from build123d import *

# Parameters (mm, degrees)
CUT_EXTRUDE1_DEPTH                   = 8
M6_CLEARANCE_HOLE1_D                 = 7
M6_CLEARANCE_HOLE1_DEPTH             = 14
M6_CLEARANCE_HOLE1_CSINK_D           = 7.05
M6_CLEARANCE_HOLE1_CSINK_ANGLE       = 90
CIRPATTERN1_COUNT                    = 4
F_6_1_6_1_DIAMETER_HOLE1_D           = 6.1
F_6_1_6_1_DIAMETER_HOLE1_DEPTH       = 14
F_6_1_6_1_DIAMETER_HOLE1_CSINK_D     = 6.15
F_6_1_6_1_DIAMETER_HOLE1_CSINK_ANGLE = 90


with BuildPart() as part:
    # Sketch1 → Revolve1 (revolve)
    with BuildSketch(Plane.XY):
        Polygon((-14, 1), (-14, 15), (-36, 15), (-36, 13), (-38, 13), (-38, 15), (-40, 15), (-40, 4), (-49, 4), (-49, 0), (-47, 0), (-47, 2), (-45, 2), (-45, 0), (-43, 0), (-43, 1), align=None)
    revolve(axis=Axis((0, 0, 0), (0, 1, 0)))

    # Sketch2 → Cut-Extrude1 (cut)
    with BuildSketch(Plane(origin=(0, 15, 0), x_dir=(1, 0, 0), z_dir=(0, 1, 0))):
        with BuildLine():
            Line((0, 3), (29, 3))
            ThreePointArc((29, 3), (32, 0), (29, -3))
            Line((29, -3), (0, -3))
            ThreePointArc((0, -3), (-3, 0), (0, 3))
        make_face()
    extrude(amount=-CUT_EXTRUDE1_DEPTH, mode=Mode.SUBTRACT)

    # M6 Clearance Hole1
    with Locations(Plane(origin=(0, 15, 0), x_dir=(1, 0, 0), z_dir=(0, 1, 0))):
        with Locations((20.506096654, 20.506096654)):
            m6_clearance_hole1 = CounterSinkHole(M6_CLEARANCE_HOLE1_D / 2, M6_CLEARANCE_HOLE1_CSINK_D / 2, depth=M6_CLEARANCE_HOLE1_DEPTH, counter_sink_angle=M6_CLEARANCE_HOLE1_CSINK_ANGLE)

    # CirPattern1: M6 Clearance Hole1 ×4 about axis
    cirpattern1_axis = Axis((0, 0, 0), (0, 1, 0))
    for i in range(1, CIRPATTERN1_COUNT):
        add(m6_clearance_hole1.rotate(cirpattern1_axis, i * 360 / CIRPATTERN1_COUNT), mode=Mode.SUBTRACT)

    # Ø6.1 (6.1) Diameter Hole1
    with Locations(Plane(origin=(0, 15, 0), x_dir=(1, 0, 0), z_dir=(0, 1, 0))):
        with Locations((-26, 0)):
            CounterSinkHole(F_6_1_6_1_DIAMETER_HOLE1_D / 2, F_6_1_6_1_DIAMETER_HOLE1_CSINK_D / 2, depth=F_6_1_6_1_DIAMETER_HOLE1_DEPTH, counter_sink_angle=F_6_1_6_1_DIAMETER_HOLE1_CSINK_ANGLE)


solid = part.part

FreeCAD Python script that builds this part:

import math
import FreeCAD as App
import Part
import Sketcher
from FreeCAD import Vector
Q = App.Units.Quantity


def add_polygon(sketch, points):
    """Adds a closed chain of lines whose ends are joined by coincident constraints."""
    first, n = sketch.GeometryCount, len(points)
    for a, b in zip(points, points[1:] + points[:1]):
        sketch.addGeometry(Part.LineSegment(App.Vector(*a, 0), App.Vector(*b, 0)), False)
    for i in range(n):
        sketch.addConstraint(Sketcher.Constraint("Coincident", first + i, 2, first + (i + 1) % n, 1))

doc = App.newDocument("Part")
body = doc.addObject("PartDesign::Body", "Body")

# Sketch on XY plane
sketch1 = body.newObject("Sketcher::SketchObject", "Sketch")
sketch1.AttachmentSupport = (doc.getObject("XY_Plane"), [""])
sketch1.MapMode = "FlatFace"
add_polygon(sketch1, [(-14, 1), (-14, 15), (-36, 15), (-36, 13), (-38, 13), (-38, 15), (-40, 15), (-40, 4), (-49, 4), (-49, 0), (-47, 0), (-47, 2), (-45, 2), (-45, 0), (-43, 0), (-43, 1)])  # lines 0-15
sketch1.addConstraint([
    Sketcher.Constraint("Vertical", 0),
    Sketcher.Constraint("Horizontal", 1),
    Sketcher.Constraint("Vertical", 2),
    Sketcher.Constraint("Horizontal", 3),
    Sketcher.Constraint("Vertical", 4),
    Sketcher.Constraint("Horizontal", 5),
    Sketcher.Constraint("Vertical", 6),
    Sketcher.Constraint("Horizontal", 7),
    Sketcher.Constraint("Vertical", 8),
    Sketcher.Constraint("Horizontal", 9),
    Sketcher.Constraint("Vertical", 10),
    Sketcher.Constraint("Horizontal", 11),
    Sketcher.Constraint("Vertical", 12),
    Sketcher.Constraint("Horizontal", 13),
    Sketcher.Constraint("Vertical", 14),
    Sketcher.Constraint("Horizontal", 15),
    Sketcher.Constraint("PointOnObject", 8, 2, -1),
    Sketcher.Constraint("PointOnObject", 12, 2, -1),
    Sketcher.Constraint("Horizontal", 1, 2, 4, 2),
    Sketcher.Constraint("Equal", 3, 5),
    Sketcher.Constraint("Equal", 5, 9),
    Sketcher.Constraint("Equal", 9, 11),
    Sketcher.Constraint("Equal", 11, 13),
    Sketcher.Constraint("Equal", 13, 2),
    Sketcher.Constraint("Equal", 4, 10),
    Sketcher.Constraint("DistanceX", 1, 2, 1, 1, Q("22 mm")),
    Sketcher.Constraint("DistanceX", 3, 2, 3, 1, Q("2 mm")),
    Sketcher.Constraint("DistanceX", 7, 2, 7, 1, Q("9 mm")),
    Sketcher.Constraint("DistanceY", 0, 1, 0, 2, Q("14 mm")),
    Sketcher.Constraint("DistanceY", 6, 2, 6, 1, Q("11 mm")),
    Sketcher.Constraint("DistanceY", 8, 2, 8, 1, Q("4 mm")),
    Sketcher.Constraint("DistanceX", 0, 2, -1, 1, Q("14 mm")),
])
revolution = body.newObject("PartDesign::Revolution", "Revolution")
revolution.Profile = sketch1
revolution.ReferenceAxis = (sketch1, ["V_Axis"])
revolution.Angle = 360

# Sketch on XZ plane
sketch2 = body.newObject("Sketcher::SketchObject", "Sketch001")
sketch2.AttachmentSupport = (doc.getObject("XZ_Plane"), [""])
sketch2.MapMode = "FlatFace"
sketch2.AttachmentOffset = App.Placement(Vector(0, 0, -15), App.Rotation())
sketch2.addGeometry([
    Part.LineSegment(Vector(29, -3, 0), Vector(0, -3, 0)),
    Part.ArcOfCircle(Part.Circle(Vector(0, 0, 0), Vector(0, 0, 1), 3), math.radians(90), math.radians(270)),
    Part.LineSegment(Vector(0, 3, 0), Vector(29, 3, 0)),
    Part.ArcOfCircle(Part.Circle(Vector(29, 0, 0), Vector(0, 0, 1), 3), math.radians(-90), math.radians(90)),
], False)
sketch2.addConstraint([
    Sketcher.Constraint("Tangent", 0, 2, 1, 2),
    Sketcher.Constraint("Tangent", 1, 1, 2, 1),
    Sketcher.Constraint("Tangent", 2, 2, 3, 2),
    Sketcher.Constraint("Tangent", 3, 1, 0, 1),
    Sketcher.Constraint("Horizontal", 0),
    Sketcher.Constraint("Horizontal", 2),
    Sketcher.Constraint("Coincident", 1, 3, -1, 1),
    Sketcher.Constraint("Radius", 1, Q("3 mm")),
    Sketcher.Constraint("DistanceX", 0, 2, 0, 1, Q("29 mm")),
])
pocket1 = body.newObject("PartDesign::Pocket", "Pocket")
pocket1.Profile = sketch2
pocket1.Length = 8
pocket1.Reversed = True

# Sketch on XZ plane
sketch3 = body.newObject("Sketcher::SketchObject", "Sketch002")
sketch3.AttachmentSupport = (doc.getObject("XZ_Plane"), [""])
sketch3.MapMode = "FlatFace"
sketch3.AttachmentOffset = App.Placement(Vector(0, 0, -15), App.Rotation())
sketch3.addGeometry(Part.Circle(Vector(20.5, -20.5, 0), Vector(0, 0, 1), 3.5), False)
sketch3.addConstraint([
    Sketcher.Constraint("Diameter", 0, Q("7 mm")),
    Sketcher.Constraint("DistanceX", -1, 1, 0, 3, Q("20.506097 mm")),
    Sketcher.Constraint("DistanceY", 0, 3, -1, 1, Q("20.506097 mm")),
])
doc.recompute()
hole = body.newObject("PartDesign::Hole", "Hole")
hole.Profile = sketch3
hole.ThreadType = "None"
hole.Diameter = 7
hole.DepthType = "Dimension"
hole.Depth = 14
hole.DrillPoint = "Flat"
hole.HoleCutType = "Countersink"
hole.HoleCutDiameter = 7.05
hole.HoleCutCountersinkAngle = 90
hole.Reversed = True
doc.recompute()

polarpattern = body.newObject("PartDesign::PolarPattern", "PolarPattern")
polarpattern.Originals = [hole]
polarpattern.Axis = (doc.getObject("Y_Axis"), [""])
polarpattern.Angle = 360
polarpattern.Occurrences = 4
body.Tip = polarpattern

# Sketch on XZ plane
sketch4 = body.newObject("Sketcher::SketchObject", "Sketch003")
sketch4.AttachmentSupport = (doc.getObject("XZ_Plane"), [""])
sketch4.MapMode = "FlatFace"
sketch4.AttachmentOffset = App.Placement(Vector(0, 0, -15), App.Rotation())
sketch4.addGeometry(Part.Circle(Vector(-26, 0, 0), Vector(0, 0, 1), 3), False)
sketch4.addConstraint([
    Sketcher.Constraint("PointOnObject", 0, 3, -1),
    Sketcher.Constraint("Diameter", 0, Q("6.1 mm")),
    Sketcher.Constraint("DistanceX", 0, 3, -1, 1, Q("26 mm")),
])
doc.recompute()
hole2 = body.newObject("PartDesign::Hole", "Hole001")
hole2.Profile = sketch4
hole2.ThreadType = "None"
hole2.Diameter = 6.1
hole2.DepthType = "Dimension"
hole2.Depth = 14
hole2.DrillPoint = "Flat"
hole2.HoleCutType = "Countersink"
hole2.HoleCutDiameter = 6.15
hole2.HoleCutCountersinkAngle = 90
hole2.Reversed = True

doc.recompute()
